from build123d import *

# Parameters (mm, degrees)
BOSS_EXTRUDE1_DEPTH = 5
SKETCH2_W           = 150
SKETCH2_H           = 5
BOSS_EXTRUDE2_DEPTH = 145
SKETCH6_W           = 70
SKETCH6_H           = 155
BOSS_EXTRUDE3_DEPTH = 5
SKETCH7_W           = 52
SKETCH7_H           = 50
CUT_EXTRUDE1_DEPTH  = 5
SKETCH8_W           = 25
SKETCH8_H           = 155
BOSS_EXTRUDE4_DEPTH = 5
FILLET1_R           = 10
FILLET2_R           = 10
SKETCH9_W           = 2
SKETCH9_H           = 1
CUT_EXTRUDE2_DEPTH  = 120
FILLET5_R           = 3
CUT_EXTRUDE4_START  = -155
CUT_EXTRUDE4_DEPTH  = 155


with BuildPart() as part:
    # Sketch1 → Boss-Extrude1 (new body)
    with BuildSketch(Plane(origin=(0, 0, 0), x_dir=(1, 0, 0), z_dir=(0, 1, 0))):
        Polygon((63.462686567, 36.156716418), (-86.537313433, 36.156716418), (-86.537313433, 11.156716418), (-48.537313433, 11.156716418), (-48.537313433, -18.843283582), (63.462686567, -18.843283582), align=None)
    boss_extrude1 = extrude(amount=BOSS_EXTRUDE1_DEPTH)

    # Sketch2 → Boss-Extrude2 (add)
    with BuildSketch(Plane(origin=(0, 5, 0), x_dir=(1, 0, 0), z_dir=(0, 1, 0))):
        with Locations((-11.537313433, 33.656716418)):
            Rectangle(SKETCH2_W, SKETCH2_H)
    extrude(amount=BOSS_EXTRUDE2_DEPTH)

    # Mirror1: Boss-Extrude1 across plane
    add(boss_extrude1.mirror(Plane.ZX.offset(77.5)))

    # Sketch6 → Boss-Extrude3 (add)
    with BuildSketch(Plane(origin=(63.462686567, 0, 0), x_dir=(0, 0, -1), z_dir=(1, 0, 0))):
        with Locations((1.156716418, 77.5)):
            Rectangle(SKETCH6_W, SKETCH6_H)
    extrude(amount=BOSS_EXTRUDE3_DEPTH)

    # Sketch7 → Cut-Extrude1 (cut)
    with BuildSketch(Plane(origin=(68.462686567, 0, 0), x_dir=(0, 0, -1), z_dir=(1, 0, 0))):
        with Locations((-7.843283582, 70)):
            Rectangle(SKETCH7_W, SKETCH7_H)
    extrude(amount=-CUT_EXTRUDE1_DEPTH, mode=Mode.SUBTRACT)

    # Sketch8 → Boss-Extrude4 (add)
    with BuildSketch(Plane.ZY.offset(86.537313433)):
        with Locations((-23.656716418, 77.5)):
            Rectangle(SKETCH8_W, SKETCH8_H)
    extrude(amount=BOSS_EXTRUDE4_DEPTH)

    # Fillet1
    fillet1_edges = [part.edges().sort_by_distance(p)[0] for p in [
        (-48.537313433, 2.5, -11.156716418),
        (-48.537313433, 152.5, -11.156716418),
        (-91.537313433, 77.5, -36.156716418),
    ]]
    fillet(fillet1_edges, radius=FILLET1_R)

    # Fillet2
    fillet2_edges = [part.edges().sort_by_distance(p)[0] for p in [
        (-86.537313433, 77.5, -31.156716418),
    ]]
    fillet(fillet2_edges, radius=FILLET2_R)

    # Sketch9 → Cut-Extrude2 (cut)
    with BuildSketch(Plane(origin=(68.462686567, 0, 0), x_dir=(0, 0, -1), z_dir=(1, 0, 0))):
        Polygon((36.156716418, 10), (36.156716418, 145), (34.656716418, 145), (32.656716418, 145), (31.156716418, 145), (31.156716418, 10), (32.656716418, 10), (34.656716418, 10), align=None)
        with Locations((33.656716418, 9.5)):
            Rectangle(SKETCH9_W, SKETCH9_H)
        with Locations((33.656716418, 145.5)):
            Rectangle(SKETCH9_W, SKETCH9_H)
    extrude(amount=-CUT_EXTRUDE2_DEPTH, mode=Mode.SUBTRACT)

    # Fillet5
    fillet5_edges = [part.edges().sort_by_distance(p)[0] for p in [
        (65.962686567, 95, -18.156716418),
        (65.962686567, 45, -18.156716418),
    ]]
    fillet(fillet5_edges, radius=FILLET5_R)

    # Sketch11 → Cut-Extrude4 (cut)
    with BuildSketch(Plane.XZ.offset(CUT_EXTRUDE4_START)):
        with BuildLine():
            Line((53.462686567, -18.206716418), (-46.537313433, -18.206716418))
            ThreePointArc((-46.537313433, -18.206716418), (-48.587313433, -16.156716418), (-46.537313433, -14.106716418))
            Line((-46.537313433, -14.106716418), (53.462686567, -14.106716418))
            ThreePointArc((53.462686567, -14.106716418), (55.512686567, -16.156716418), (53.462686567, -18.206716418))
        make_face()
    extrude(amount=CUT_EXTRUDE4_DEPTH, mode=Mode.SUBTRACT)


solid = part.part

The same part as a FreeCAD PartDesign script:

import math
import FreeCAD as App
import Part
import Sketcher

V = App.Vector
Q = App.Units.Quantity


def edges_at(feature, points):
    """Names of the edges that pass closest to the given points."""
    edges = feature.Shape.Edges
    near = lambda p: min(range(len(edges)), key=lambda i: edges[i].distToShape(Part.Vertex(*p))[0])
    return sorted({f"Edge{near(p) + 1}" for p in points})

doc = App.newDocument("Part")
body = doc.addObject("PartDesign::Body", "Body")

# Sketch on XZ plane
sketch1 = body.newObject("Sketcher::SketchObject", "Sketch")
sketch1.AttachmentSupport = (doc.getObject("XZ_Plane"), [""])
sketch1.MapMode = "FlatFace"
sketch1.addGeometry(Part.LineSegment(V(63, -36, 0), V(-87, -36, 0)), False)
sketch1.addGeometry(Part.LineSegment(V(-87, -36, 0), V(-87, -11, 0)), False)
sketch1.addGeometry(Part.LineSegment(V(-87, -11, 0), V(-49, -11, 0)), False)
sketch1.addGeometry(Part.LineSegment(V(-49, -11, 0), V(-49, 19, 0)), False)
sketch1.addGeometry(Part.LineSegment(V(-49, 19, 0), V(63, 19, 0)), False)
sketch1.addGeometry(Part.LineSegment(V(63, 19, 0), V(63, -36, 0)), False)
sketch1.addConstraint(Sketcher.Constraint("Coincident", 0, 2, 1, 1))
sketch1.addConstraint(Sketcher.Constraint("Coincident", 1, 2, 2, 1))
sketch1.addConstraint(Sketcher.Constraint("Coincident", 2, 2, 3, 1))
sketch1.addConstraint(Sketcher.Constraint("Coincident", 3, 2, 4, 1))
sketch1.addConstraint(Sketcher.Constraint("Coincident", 4, 2, 5, 1))
sketch1.addConstraint(Sketcher.Constraint("Coincident", 5, 2, 0, 1))
sketch1.addConstraint(Sketcher.Constraint("Horizontal", 0))
sketch1.addConstraint(Sketcher.Constraint("Vertical", 1))
sketch1.addConstraint(Sketcher.Constraint("Horizontal", 2))
sketch1.addConstraint(Sketcher.Constraint("Vertical", 3))
sketch1.addConstraint(Sketcher.Constraint("Horizontal", 4))
sketch1.addConstraint(Sketcher.Constraint("Vertical", 5))
sketch1.addConstraint(Sketcher.Constraint("DistanceX", 0, 2, 0, 1, Q("150 mm")))
sketch1.addConstraint(Sketcher.Constraint("DistanceX", 2, 1, 2, 2, Q("38 mm")))
sketch1.addConstraint(Sketcher.Constraint("DistanceY", 1, 1, 1, 2, Q("25 mm")))
sketch1.addConstraint(Sketcher.Constraint("DistanceY", 3, 1, 3, 2, Q("30 mm")))
sketch1.addConstraint(Sketcher.Constraint("DistanceX", 0, 2, -1, 1, Q("86.537313 mm")))
sketch1.addConstraint(Sketcher.Constraint("DistanceY", 0, 2, -1, 1, Q("36.156716 mm")))
pad1 = body.newObject("PartDesign::Pad", "Pad")
pad1.Profile = sketch1
pad1.Length = 5
pad1.Reversed = True

# Sketch on XZ plane
sketch2 = body.newObject("Sketcher::SketchObject", "Sketch001")
sketch2.AttachmentSupport = (doc.getObject("XZ_Plane"), [""])
sketch2.MapMode = "FlatFace"
sketch2.AttachmentOffset = App.Placement(V(0, 0, -5), App.Rotation())
sketch2.addGeometry(Part.LineSegment(V(-87, -36, 0), V(-87, -31, 0)), False)
sketch2.addGeometry(Part.LineSegment(V(-87, -31, 0), V(63, -31, 0)), False)
sketch2.addGeometry(Part.LineSegment(V(63, -31, 0), V(63, -36, 0)), False)
sketch2.addGeometry(Part.LineSegment(V(63, -36, 0), V(-87, -36, 0)), False)
sketch2.addConstraint(Sketcher.Constraint("Coincident", 0, 2, 1, 1))
sketch2.addConstraint(Sketcher.Constraint("Coincident", 1, 2, 2, 1))
sketch2.addConstraint(Sketcher.Constraint("Coincident", 2, 2, 3, 1))
sketch2.addConstraint(Sketcher.Constraint("Coincident", 3, 2, 0, 1))
sketch2.addConstraint(Sketcher.Constraint("Vertical", 0))
sketch2.addConstraint(Sketcher.Constraint("Horizontal", 1))
sketch2.addConstraint(Sketcher.Constraint("Vertical", 2))
sketch2.addConstraint(Sketcher.Constraint("Horizontal", 3))
sketch2.addConstraint(Sketcher.Constraint("DistanceX", 1, 1, 1, 2, Q("150 mm")))
sketch2.addConstraint(Sketcher.Constraint("DistanceY", 0, 1, 0, 2, Q("5 mm")))
sketch2.addConstraint(Sketcher.Constraint("DistanceX", 0, 2, -1, 1, Q("86.537313 mm")))
sketch2.addConstraint(Sketcher.Constraint("DistanceY", 0, 2, -1, 1, Q("31.156716 mm")))
pad2 = body.newObject("PartDesign::Pad", "Pad001")
pad2.Profile = sketch2
pad2.Length = 145
pad2.Reversed = True
doc.recompute()

datumplane = body.newObject("PartDesign::Plane", "DatumPlane")
datumplane.AttachmentSupport = (doc.getObject("XZ_Plane"), [""])
datumplane.MapMode = "FlatFace"
datumplane.AttachmentOffset = App.Placement(V(0, 0, -77.5), App.Rotation())
mirrored = body.newObject("PartDesign::Mirrored", "Mirrored")
mirrored.Originals = [pad1]
mirrored.MirrorPlane = (datumplane, [""])
body.Tip = mirrored

# Sketch on YZ plane
sketch3 = body.newObject("Sketcher::SketchObject", "Sketch002")
sketch3.AttachmentSupport = (doc.getObject("YZ_Plane"), [""])
sketch3.MapMode = "FlatFace"
sketch3.AttachmentOffset = App.Placement(V(0, 0, 63.462687), App.Rotation())
sketch3.addGeometry(Part.LineSegment(V(155, 34, 0), V(0, 34, 0)), False)
sketch3.addGeometry(Part.LineSegment(V(0, 34, 0), V(0, -36, 0)), False)
sketch3.addGeometry(Part.LineSegment(V(0, -36, 0), V(155, -36, 0)), False)
sketch3.addGeometry(Part.LineSegment(V(155, -36, 0), V(155, 34, 0)), False)
sketch3.addConstraint(Sketcher.Constraint("Coincident", 0, 2, 1, 1))
sketch3.addConstraint(Sketcher.Constraint("Coincident", 1, 2, 2, 1))
sketch3.addConstraint(Sketcher.Constraint("Coincident", 2, 2, 3, 1))
sketch3.addConstraint(Sketcher.Constraint("Coincident", 3, 2, 0, 1))
sketch3.addConstraint(Sketcher.Constraint("Horizontal", 0))
sketch3.addConstraint(Sketcher.Constraint("Vertical", 1))
sketch3.addConstraint(Sketcher.Constraint("Horizontal", 2))
sketch3.addConstraint(Sketcher.Constraint("Vertical", 3))
sketch3.addConstraint(Sketcher.Constraint("PointOnObject", 0, 2, -2))
sketch3.addConstraint(Sketcher.Constraint("DistanceX", 0, 2, 0, 1, Q("155 mm")))
sketch3.addConstraint(Sketcher.Constraint("DistanceY", 1, 2, 1, 1, Q("70 mm")))
sketch3.addConstraint(Sketcher.Constraint("DistanceY", -1, 1, 0, 2, Q("33.843284 mm")))
pad3 = body.newObject("PartDesign::Pad", "Pad002")
pad3.Profile = sketch3
pad3.Length = 5

# Sketch on YZ plane
sketch4 = body.newObject("Sketcher::SketchObject", "Sketch003")
sketch4.AttachmentSupport = (doc.getObject("YZ_Plane"), [""])
sketch4.MapMode = "FlatFace"
sketch4.AttachmentOffset = App.Placement(V(0, 0, 68.462687), App.Rotation())
sketch4.addGeometry(Part.LineSegment(V(95, 34, 0), V(45, 34, 0)), False)
sketch4.addGeometry(Part.LineSegment(V(45, 34, 0), V(45, -18, 0)), False)
sketch4.addGeometry(Part.LineSegment(V(45, -18, 0), V(95, -18, 0)), False)
sketch4.addGeometry(Part.LineSegment(V(95, -18, 0), V(95, 34, 0)), False)
sketch4.addConstraint(Sketcher.Constraint("Coincident", 0, 2, 1, 1))
sketch4.addConstraint(Sketcher.Constraint("Coincident", 1, 2, 2, 1))
sketch4.addConstraint(Sketcher.Constraint("Coincident", 2, 2, 3, 1))
sketch4.addConstraint(Sketcher.Constraint("Coincident", 3, 2, 0, 1))
sketch4.addConstraint(Sketcher.Constraint("Horizontal", 0))
sketch4.addConstraint(Sketcher.Constraint("Vertical", 1))
sketch4.addConstraint(Sketcher.Constraint("Horizontal", 2))
sketch4.addConstraint(Sketcher.Constraint("Vertical", 3))
sketch4.addConstraint(Sketcher.Constraint("DistanceX", 0, 2, 0, 1, Q("50 mm")))
sketch4.addConstraint(Sketcher.Constraint("DistanceY", 1, 2, 1, 1, Q("52 mm")))
sketch4.addConstraint(Sketcher.Constraint("DistanceX", -1, 1, 0, 2, Q("45 mm")))
sketch4.addConstraint(Sketcher.Constraint("DistanceY", -1, 1, 0, 2, Q("33.843284 mm")))
pocket1 = body.newObject("PartDesign::Pocket", "Pocket")
pocket1.Profile = sketch4
pocket1.Length = 5

# Sketch on YZ plane
sketch5 = body.newObject("Sketcher::SketchObject", "Sketch004")
sketch5.AttachmentSupport = (doc.getObject("YZ_Plane"), [""])
sketch5.MapMode = "FlatFace"
sketch5.AttachmentOffset = App.Placement(V(0, 0, -86.537313), App.Rotation())
sketch5.addGeometry(Part.LineSegment(V(155, -36, 0), V(0, -36, 0)), False)
sketch5.addGeometry(Part.LineSegment(V(0, -36, 0), V(0, -11, 0)), False)
sketch5.addGeometry(Part.LineSegment(V(0, -11, 0), V(155, -11, 0)), False)
sketch5.addGeometry(Part.LineSegment(V(155, -11, 0), V(155, -36, 0)), False)
sketch5.addConstraint(Sketcher.Constraint("Coincident", 0, 2, 1, 1))
sketch5.addConstraint(Sketcher.Constraint("Coincident", 1, 2, 2, 1))
sketch5.addConstraint(Sketcher.Constraint("Coincident", 2, 2, 3, 1))
sketch5.addConstraint(Sketcher.Constraint("Coincident", 3, 2, 0, 1))
sketch5.addConstraint(Sketcher.Constraint("Horizontal", 0))
sketch5.addConstraint(Sketcher.Constraint("Vertical", 1))
sketch5.addConstraint(Sketcher.Constraint("Horizontal", 2))
sketch5.addConstraint(Sketcher.Constraint("Vertical", 3))
sketch5.addConstraint(Sketcher.Constraint("PointOnObject", 0, 2, -2))
sketch5.addConstraint(Sketcher.Constraint("DistanceX", 0, 2, 0, 1, Q("155 mm")))
sketch5.addConstraint(Sketcher.Constraint("DistanceY", 1, 1, 1, 2, Q("25 mm")))
sketch5.addConstraint(Sketcher.Constraint("DistanceY", 0, 2, -1, 1, Q("36.156716 mm")))
pad4 = body.newObject("PartDesign::Pad", "Pad003")
pad4.Profile = sketch5
pad4.Length = 5
pad4.Reversed = True
doc.recompute()

fillet = body.newObject("PartDesign::Fillet", "Fillet")
fillet.Base = (pad4, edges_at(pad4, [(-48.537, 2.5, -11.157), (-48.537, 152.5, -11.157), (-91.537, 77.5, -36.157)]))
fillet.Radius = 10
doc.recompute()

fillet2 = body.newObject("PartDesign::Fillet", "Fillet001")
fillet2.Base = (fillet, edges_at(fillet, [(-86.537, 77.5, -31.157)]))
fillet2.Radius = 10

# Sketch on YZ plane
sketch6 = body.newObject("Sketcher::SketchObject", "Sketch005")
sketch6.AttachmentSupport = (doc.getObject("YZ_Plane"), [""])
sketch6.MapMode = "FlatFace"
sketch6.AttachmentOffset = App.Placement(V(0, 0, 68.462687), App.Rotation())
sketch6.addGeometry(Part.LineSegment(V(10, -36.2, 0), V(145, -36.2, 0)), False)
sketch6.addGeometry(Part.LineSegment(V(145, -36.2, 0), V(145, -34.7, 0)), False)
sketch6.addGeometry(Part.LineSegment(V(145, -34.7, 0), V(146, -34.7, 0)), False)
sketch6.addGeometry(Part.LineSegment(V(146, -34.7, 0), V(146, -32.7, 0)), False)
sketch6.addGeometry(Part.LineSegment(V(146, -32.7, 0), V(145, -32.7, 0)), False)
sketch6.addGeometry(Part.LineSegment(V(145, -32.7, 0), V(145, -31.2, 0)), False)
sketch6.addGeometry(Part.LineSegment(V(145, -31.2, 0), V(10, -31.2, 0)), False)
sketch6.addGeometry(Part.LineSegment(V(10, -31.2, 0), V(10, -32.7, 0)), False)
sketch6.addGeometry(Part.LineSegment(V(10, -32.7, 0), V(9, -32.7, 0)), False)
sketch6.addGeometry(Part.LineSegment(V(9, -32.7, 0), V(9, -34.7, 0)), False)
sketch6.addGeometry(Part.LineSegment(V(9, -34.7, 0), V(10, -34.7, 0)), False)
sketch6.addGeometry(Part.LineSegment(V(10, -34.7, 0), V(10, -36.2, 0)), False)
sketch6.addConstraint(Sketcher.Constraint("Coincident", 0, 2, 1, 1))
sketch6.addConstraint(Sketcher.Constraint("Coincident", 1, 2, 2, 1))
sketch6.addConstraint(Sketcher.Constraint("Coincident", 2, 2, 3, 1))
sketch6.addConstraint(Sketcher.Constraint("Coincident", 3, 2, 4, 1))
sketch6.addConstraint(Sketcher.Constraint("Coincident", 4, 2, 5, 1))
sketch6.addConstraint(Sketcher.Constraint("Coincident", 5, 2, 6, 1))
sketch6.addConstraint(Sketcher.Constraint("Coincident", 6, 2, 7, 1))
sketch6.addConstraint(Sketcher.Constraint("Coincident", 7, 2, 8, 1))
sketch6.addConstraint(Sketcher.Constraint("Coincident", 8, 2, 9, 1))
sketch6.addConstraint(Sketcher.Constraint("Coincident", 9, 2, 10, 1))
sketch6.addConstraint(Sketcher.Constraint("Coincident", 10, 2, 11, 1))
sketch6.addConstraint(Sketcher.Constraint("Coincident", 11, 2, 0, 1))
sketch6.addConstraint(Sketcher.Constraint("Horizontal", 0))
sketch6.addConstraint(Sketcher.Constraint("Vertical", 1))
sketch6.addConstraint(Sketcher.Constraint("Horizontal", 2))
sketch6.addConstraint(Sketcher.Constraint("Vertical", 3))
sketch6.addConstraint(Sketcher.Constraint("Horizontal", 4))
sketch6.addConstraint(Sketcher.Constraint("Vertical", 5))
sketch6.addConstraint(Sketcher.Constraint("Horizontal", 6))
sketch6.addConstraint(Sketcher.Constraint("Vertical", 7))
sketch6.addConstraint(Sketcher.Constraint("Horizontal", 8))
sketch6.addConstraint(Sketcher.Constraint("Vertical", 9))
sketch6.addConstraint(Sketcher.Constraint("Horizontal", 10))
sketch6.addConstraint(Sketcher.Constraint("Vertical", 11))
sketch6.addConstraint(Sketcher.Constraint("Horizontal", 4, 2, 7, 2))
sketch6.addConstraint(Sketcher.Constraint("Horizontal", 2, 2, 9, 2))
sketch6.addConstraint(Sketcher.Constraint("Vertical", 1, 2, 4, 2))
sketch6.addConstraint(Sketcher.Constraint("Vertical", 7, 2, 10, 2))
sketch6.addConstraint(Sketcher.Constraint("Equal", 4, 8))
sketch6.addConstraint(Sketcher.Constraint("Equal", 1, 5))
sketch6.addConstraint(Sketcher.Constraint("DistanceX", 0, 1, 0, 2, Q("135 mm")))
sketch6.addConstraint(Sketcher.Constraint("DistanceX", 2, 1, 2, 2, Q("1 mm")))
sketch6.addConstraint(Sketcher.Constraint("DistanceY", 3, 1, 3, 2, Q("2 mm")))
sketch6.addConstraint(Sketcher.Constraint("DistanceY", 1, 1, 1, 2, Q("1.5 mm")))
sketch6.addConstraint(Sketcher.Constraint("DistanceX", -1, 1, 0, 2, Q("145 mm")))
sketch6.addConstraint(Sketcher.Constraint("DistanceY", 0, 2, -1, 1, Q("36.156716 mm")))
pocket2 = body.newObject("PartDesign::Pocket", "Pocket001")
pocket2.Profile = sketch6
pocket2.Length = 120
doc.recompute()

fillet3 = body.newObject("PartDesign::Fillet", "Fillet002")
fillet3.Base = (pocket2, edges_at(pocket2, [(65.963, 95, -18.157), (65.963, 45, -18.157)]))
fillet3.Radius = 3

# Sketch on XZ plane
sketch7 = body.newObject("Sketcher::SketchObject", "Sketch006")
sketch7.AttachmentSupport = (doc.getObject("XZ_Plane"), [""])
sketch7.MapMode = "FlatFace"
sketch7.AttachmentOffset = App.Placement(V(0, 0, -155), App.Rotation())
sketch7.addGeometry(Part.LineSegment(V(-46.5, -18.2, 0), V(53.5, -18.2, 0)), False)
sketch7.addGeometry(Part.ArcOfCircle(Part.Circle(V(53.5, -16.2, 0), V(0, 0, 1), 2), math.radians(-90), math.radians(90)), False)
sketch7.addGeometry(Part.LineSegment(V(53.5, -14.1, 0), V(-46.5, -14.1, 0)), False)
sketch7.addGeometry(Part.ArcOfCircle(Part.Circle(V(-46.5, -16.2, 0), V(0, 0, 1), 2), math.radians(90), math.radians(270)), False)
sketch7.addConstraint(Sketcher.Constraint("Tangent", 0, 2, 1, 1))
sketch7.addConstraint(Sketcher.Constraint("Tangent", 1, 2, 2, 1))
sketch7.addConstraint(Sketcher.Constraint("Tangent", 2, 2, 3, 1))
sketch7.addConstraint(Sketcher.Constraint("Tangent", 3, 2, 0, 1))
sketch7.addConstraint(Sketcher.Constraint("Horizontal", 0))
sketch7.addConstraint(Sketcher.Constraint("Horizontal", 2))
sketch7.addConstraint(Sketcher.Constraint("DistanceX", 0, 1, 0, 2, Q("100 mm")))
sketch7.addConstraint(Sketcher.Constraint("Radius", 1, Q("2.05 mm")))
sketch7.addConstraint(Sketcher.Constraint("DistanceX", -1, 1, 1, 3, Q("53.462687 mm")))
sketch7.addConstraint(Sketcher.Constraint("DistanceY", 1, 3, -1, 1, Q("16.156716 mm")))
pocket3 = body.newObject("PartDesign::Pocket", "Pocket002")
pocket3.Profile = sketch7
pocket3.Length = 155
pocket3.Reversed = True

doc.recompute()
